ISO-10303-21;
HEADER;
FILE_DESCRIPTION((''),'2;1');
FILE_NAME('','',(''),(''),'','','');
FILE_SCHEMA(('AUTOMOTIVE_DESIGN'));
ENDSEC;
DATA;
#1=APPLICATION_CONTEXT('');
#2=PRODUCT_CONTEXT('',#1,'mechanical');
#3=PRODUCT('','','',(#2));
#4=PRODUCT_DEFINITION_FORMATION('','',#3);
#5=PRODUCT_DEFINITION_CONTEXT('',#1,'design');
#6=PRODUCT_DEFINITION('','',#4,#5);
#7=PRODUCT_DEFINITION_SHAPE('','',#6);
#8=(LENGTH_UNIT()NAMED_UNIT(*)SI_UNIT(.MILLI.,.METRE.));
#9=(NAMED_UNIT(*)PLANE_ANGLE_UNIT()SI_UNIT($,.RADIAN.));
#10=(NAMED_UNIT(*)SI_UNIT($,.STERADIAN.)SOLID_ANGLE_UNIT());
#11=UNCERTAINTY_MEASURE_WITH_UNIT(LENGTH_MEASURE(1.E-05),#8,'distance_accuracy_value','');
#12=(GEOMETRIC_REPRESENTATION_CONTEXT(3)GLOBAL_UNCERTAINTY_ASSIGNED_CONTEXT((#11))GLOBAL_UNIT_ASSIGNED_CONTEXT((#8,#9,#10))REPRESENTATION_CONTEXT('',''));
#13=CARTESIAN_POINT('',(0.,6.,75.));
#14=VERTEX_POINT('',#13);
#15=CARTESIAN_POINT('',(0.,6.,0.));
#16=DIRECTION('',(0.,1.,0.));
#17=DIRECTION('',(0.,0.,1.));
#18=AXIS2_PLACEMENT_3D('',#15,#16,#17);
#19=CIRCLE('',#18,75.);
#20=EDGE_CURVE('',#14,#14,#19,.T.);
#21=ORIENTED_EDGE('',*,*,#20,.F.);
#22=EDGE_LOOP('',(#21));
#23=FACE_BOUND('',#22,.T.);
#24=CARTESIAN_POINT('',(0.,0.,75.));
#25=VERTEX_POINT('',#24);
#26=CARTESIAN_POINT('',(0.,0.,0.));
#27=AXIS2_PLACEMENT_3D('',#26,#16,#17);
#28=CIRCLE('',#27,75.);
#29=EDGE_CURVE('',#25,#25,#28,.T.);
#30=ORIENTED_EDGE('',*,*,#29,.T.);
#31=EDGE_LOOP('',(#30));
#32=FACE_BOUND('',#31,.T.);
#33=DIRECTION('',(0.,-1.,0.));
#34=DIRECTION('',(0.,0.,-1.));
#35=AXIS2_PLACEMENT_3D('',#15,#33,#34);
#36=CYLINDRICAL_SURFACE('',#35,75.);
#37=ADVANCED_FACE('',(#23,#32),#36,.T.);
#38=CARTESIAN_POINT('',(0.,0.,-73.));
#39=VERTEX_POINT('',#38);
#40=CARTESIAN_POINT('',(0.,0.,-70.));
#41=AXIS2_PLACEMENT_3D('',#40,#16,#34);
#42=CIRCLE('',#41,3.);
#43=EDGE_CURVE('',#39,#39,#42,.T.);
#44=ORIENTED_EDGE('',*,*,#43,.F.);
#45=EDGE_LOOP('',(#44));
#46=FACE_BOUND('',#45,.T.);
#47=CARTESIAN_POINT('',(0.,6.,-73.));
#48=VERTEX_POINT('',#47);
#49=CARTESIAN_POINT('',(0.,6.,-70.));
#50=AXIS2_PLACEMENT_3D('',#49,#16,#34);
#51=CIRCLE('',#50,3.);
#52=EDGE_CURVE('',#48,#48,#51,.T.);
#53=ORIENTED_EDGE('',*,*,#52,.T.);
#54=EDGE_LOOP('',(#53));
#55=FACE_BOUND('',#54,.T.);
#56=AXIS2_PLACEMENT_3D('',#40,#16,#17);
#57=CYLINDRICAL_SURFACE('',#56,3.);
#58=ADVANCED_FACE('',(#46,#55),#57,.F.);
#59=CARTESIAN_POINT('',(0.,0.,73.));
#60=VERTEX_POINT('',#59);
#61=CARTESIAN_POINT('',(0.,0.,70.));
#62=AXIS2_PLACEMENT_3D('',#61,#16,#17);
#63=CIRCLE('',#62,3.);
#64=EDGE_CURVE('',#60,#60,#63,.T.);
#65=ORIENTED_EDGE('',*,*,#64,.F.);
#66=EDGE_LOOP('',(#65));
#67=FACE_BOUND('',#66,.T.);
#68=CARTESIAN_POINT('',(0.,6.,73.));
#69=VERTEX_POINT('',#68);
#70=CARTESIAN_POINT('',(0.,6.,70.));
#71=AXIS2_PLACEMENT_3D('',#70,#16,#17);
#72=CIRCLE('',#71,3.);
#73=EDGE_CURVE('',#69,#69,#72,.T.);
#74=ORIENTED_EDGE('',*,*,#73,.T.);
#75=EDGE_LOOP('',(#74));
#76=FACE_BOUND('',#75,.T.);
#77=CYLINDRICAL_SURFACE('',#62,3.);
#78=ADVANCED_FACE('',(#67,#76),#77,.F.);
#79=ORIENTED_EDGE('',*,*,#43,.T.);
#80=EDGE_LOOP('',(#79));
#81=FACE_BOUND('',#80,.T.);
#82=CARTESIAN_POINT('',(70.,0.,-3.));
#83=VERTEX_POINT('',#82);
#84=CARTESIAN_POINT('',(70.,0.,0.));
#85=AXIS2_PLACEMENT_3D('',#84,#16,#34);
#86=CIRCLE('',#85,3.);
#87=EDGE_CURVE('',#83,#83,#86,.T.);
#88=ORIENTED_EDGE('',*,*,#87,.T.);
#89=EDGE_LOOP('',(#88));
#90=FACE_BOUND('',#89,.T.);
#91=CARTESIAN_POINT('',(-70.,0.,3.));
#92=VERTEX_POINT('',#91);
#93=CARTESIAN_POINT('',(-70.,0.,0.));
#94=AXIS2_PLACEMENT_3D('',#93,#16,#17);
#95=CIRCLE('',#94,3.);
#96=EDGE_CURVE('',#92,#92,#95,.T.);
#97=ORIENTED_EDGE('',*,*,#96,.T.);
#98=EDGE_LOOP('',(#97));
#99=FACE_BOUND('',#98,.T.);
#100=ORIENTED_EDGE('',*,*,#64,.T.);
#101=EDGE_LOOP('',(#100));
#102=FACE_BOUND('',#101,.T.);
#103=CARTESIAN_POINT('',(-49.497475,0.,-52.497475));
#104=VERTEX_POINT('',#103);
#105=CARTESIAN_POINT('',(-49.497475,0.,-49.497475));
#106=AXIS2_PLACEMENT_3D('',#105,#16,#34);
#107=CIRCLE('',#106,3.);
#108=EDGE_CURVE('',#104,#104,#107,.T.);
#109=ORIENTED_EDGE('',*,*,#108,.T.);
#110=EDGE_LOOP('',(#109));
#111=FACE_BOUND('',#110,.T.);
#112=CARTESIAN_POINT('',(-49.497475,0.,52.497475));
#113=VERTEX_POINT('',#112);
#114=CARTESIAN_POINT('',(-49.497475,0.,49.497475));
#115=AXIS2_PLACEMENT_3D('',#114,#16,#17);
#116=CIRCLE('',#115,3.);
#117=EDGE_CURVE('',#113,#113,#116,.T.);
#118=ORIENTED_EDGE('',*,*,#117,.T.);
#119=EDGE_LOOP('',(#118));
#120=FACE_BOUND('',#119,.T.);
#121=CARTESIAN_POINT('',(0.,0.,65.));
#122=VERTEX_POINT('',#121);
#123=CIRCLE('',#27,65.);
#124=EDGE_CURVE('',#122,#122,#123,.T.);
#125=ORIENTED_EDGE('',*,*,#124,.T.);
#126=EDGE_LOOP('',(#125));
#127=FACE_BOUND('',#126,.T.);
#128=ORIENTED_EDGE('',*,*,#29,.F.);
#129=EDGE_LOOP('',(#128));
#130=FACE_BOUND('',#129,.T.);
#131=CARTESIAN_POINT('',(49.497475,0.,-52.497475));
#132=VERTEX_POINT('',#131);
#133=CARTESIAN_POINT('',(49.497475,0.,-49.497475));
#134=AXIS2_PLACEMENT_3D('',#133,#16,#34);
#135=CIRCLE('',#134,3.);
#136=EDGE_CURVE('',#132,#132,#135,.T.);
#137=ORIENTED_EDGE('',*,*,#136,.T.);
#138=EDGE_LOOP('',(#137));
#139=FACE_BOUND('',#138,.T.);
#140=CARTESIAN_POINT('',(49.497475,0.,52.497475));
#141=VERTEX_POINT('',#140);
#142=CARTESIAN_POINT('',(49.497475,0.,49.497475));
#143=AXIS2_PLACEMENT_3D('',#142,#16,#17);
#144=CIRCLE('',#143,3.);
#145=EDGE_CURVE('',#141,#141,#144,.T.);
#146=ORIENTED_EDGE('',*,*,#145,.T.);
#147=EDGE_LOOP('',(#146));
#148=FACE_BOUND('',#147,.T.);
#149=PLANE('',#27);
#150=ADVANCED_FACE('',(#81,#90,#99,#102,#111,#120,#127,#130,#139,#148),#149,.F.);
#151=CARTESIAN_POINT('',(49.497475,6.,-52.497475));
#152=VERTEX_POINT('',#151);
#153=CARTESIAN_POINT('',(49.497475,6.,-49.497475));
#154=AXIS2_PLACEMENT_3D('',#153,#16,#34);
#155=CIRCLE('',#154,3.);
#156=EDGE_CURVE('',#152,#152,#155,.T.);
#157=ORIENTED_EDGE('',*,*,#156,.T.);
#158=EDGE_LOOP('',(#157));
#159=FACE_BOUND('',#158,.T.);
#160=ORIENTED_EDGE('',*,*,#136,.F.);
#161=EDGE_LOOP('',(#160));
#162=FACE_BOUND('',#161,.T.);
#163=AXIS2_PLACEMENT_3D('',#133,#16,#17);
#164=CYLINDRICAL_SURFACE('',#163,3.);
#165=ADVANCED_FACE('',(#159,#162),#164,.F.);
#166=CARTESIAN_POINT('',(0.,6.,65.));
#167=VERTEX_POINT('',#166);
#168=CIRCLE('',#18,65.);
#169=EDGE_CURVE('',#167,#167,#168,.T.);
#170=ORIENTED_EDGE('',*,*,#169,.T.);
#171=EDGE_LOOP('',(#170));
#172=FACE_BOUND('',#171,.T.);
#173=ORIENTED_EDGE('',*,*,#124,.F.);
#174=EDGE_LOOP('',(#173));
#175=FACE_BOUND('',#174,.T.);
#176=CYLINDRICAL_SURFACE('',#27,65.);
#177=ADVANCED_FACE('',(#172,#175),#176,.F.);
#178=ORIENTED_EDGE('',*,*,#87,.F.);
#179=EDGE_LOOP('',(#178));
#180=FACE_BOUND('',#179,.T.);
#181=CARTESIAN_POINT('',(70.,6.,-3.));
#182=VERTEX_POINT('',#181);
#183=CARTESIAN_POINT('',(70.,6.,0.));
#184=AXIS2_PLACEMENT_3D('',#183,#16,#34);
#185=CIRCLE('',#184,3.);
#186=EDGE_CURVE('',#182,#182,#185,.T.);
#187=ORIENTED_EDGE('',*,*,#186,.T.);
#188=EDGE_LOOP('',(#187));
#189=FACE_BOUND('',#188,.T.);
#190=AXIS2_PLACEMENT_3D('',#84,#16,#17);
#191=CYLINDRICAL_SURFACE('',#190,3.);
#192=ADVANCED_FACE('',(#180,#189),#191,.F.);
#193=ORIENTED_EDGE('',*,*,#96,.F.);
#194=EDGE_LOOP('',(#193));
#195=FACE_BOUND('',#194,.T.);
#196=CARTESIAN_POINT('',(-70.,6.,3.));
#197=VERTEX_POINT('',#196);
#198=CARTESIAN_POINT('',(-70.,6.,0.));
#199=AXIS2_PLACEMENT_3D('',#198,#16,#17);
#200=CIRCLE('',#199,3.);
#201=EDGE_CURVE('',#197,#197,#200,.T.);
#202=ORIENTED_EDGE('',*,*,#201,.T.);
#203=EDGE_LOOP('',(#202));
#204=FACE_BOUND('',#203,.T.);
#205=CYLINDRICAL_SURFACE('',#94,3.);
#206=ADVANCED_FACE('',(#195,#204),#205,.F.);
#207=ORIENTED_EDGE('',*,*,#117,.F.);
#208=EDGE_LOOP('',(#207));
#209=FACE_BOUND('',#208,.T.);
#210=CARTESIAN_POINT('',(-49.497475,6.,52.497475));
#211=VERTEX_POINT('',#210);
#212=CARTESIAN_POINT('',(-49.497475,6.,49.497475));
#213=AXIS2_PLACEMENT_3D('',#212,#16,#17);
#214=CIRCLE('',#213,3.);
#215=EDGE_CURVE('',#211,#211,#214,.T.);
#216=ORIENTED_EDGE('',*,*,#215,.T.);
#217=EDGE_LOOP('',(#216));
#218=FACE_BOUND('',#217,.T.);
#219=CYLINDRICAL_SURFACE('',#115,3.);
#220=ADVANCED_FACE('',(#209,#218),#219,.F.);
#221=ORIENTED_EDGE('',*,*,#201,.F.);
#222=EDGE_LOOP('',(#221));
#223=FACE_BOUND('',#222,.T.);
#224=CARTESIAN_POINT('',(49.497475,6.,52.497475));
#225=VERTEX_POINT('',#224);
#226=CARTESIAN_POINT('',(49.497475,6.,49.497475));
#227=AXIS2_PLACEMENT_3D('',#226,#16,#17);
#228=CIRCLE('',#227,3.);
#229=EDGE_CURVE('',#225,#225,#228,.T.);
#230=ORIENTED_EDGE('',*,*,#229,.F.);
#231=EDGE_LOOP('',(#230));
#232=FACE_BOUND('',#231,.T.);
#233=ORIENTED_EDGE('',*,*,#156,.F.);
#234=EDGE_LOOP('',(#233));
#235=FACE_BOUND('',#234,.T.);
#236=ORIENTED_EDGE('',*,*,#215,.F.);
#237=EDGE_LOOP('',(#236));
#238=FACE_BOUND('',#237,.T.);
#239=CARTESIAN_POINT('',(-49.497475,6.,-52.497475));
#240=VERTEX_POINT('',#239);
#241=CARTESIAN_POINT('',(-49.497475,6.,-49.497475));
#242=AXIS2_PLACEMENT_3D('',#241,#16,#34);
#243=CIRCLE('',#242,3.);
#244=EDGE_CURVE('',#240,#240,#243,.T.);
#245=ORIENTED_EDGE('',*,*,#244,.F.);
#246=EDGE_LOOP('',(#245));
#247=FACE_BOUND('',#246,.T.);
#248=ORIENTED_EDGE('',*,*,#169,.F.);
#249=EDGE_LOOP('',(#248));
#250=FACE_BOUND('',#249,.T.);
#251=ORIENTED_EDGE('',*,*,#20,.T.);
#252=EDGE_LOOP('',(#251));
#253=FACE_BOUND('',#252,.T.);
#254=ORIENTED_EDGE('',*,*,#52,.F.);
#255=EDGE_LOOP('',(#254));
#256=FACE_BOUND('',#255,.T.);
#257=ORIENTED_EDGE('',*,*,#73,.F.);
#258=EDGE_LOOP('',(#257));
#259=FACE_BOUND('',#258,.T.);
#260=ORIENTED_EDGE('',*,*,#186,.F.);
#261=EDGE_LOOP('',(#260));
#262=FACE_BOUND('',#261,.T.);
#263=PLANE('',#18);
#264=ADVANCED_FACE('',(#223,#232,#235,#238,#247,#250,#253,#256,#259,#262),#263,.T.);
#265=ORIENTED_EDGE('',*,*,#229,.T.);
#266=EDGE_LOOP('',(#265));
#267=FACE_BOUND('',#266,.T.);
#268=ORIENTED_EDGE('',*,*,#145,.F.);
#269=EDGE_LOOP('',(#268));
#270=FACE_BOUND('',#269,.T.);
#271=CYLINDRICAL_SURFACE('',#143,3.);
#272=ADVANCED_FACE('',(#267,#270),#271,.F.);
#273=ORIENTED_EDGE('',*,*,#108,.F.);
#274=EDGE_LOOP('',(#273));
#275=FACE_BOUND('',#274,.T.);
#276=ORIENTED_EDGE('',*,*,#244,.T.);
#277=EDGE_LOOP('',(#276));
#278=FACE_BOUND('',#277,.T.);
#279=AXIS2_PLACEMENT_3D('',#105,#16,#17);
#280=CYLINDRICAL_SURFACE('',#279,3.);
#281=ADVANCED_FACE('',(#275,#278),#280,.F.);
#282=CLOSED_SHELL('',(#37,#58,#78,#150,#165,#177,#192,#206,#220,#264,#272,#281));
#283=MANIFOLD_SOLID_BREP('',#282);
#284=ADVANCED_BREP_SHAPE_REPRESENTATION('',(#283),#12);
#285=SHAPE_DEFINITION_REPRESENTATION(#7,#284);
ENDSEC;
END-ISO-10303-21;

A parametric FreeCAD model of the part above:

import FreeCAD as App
import Part
import Sketcher

V = App.Vector
Q = App.Units.Quantity

doc = App.newDocument("Part")
body = doc.addObject("PartDesign::Body", "Body")

# Sketch on XZ plane
sketch1 = body.newObject("Sketcher::SketchObject", "Sketch")
sketch1.AttachmentSupport = (doc.getObject("XZ_Plane"), [""])
sketch1.MapMode = "FlatFace"
sketch1.addGeometry(Part.Circle(V(0, 0, 0), V(0, 0, 1), 75), False)
sketch1.addConstraint([
    Sketcher.Constraint("Coincident", 0, 3, -1, 1),
    Sketcher.Constraint("Diameter", 0, Q("150 mm")),
])
pad1 = body.newObject("PartDesign::Pad", "Pad")
pad1.Profile = sketch1
pad1.Length = 6
pad1.Reversed = True

# Sketch on XZ plane
sketch2 = body.newObject("Sketcher::SketchObject", "Sketch001")
sketch2.AttachmentSupport = (doc.getObject("XZ_Plane"), [""])
sketch2.MapMode = "FlatFace"
sketch2.AttachmentOffset = App.Placement(V(0, 0, -6), App.Rotation())
sketch2.addGeometry([
    Part.Circle(V(-70, 0, 0), V(0, 0, 1), 3),  # 0
    Part.Circle(V(70, 0, 0), V(0, 0, 1), 3),  # 1
    Part.Circle(V(0, 70, 0), V(0, 0, 1), 3),  # 2
    Part.Circle(V(0, -70, 0), V(0, 0, 1), 3),  # 3
    Part.Circle(V(-49.5, 49.5, 0), V(0, 0, 1), 3),  # 4
    Part.Circle(V(-49.5, -49.5, 0), V(0, 0, 1), 3),  # 5
    Part.Circle(V(49.5, 49.5, 0), V(0, 0, 1), 3),  # 6
    Part.Circle(V(49.5, -49.5, 0), V(0, 0, 1), 3),  # 7
], False)
sketch2.addConstraint([
    Sketcher.Constraint("Equal", 0, 1),
    Sketcher.Constraint("Equal", 1, 2),
    Sketcher.Constraint("Equal", 2, 3),
    Sketcher.Constraint("Equal", 3, 4),
    Sketcher.Constraint("Equal", 4, 5),
    Sketcher.Constraint("Equal", 5, 6),
    Sketcher.Constraint("Equal", 6, 7),
    Sketcher.Constraint("Symmetric", 0, 3, 1, 3, -1, 1),
    Sketcher.Constraint("Symmetric", 2, 3, 3, 3, -1, 1),
    Sketcher.Constraint("Symmetric", 5, 3, 6, 3, -1, 1),
    Sketcher.Constraint("Symmetric", 4, 3, 7, 3, -1, 1),
    Sketcher.Constraint("Symmetric", 4, 3, 6, 3, -2),
    Sketcher.Constraint("PointOnObject", 0, 3, -1),
    Sketcher.Constraint("PointOnObject", 2, 3, -2),
    Sketcher.Constraint("Diameter", 0, Q("6 mm")),
    Sketcher.Constraint("DistanceX", 0, 3, -1, 1, Q("70 mm")),
    Sketcher.Constraint("DistanceY", -1, 1, 2, 3, Q("70 mm")),
    Sketcher.Constraint("DistanceY", 5, 3, 4, 3, Q("98.994949 mm")),
    Sketcher.Constraint("DistanceX", 4, 3, 6, 3, Q("98.994949 mm")),
])
pocket1 = body.newObject("PartDesign::Pocket", "Pocket")
pocket1.Profile = sketch2
pocket1.Length = 6
pocket1.Reversed = True

# Sketch on XZ plane
sketch3 = body.newObject("Sketcher::SketchObject", "Sketch002")
sketch3.AttachmentSupport = (doc.getObject("XZ_Plane"), [""])
sketch3.MapMode = "FlatFace"
sketch3.AttachmentOffset = App.Placement(V(0, 0, -6), App.Rotation())
sketch3.addGeometry(Part.Circle(V(0, 0, 0), V(0, 0, 1), 65), False)
sketch3.addConstraint([
    Sketcher.Constraint("Coincident", 0, 3, -1, 1),
    Sketcher.Constraint("Diameter", 0, Q("130 mm")),
])
pocket2 = body.newObject("PartDesign::Pocket", "Pocket001")
pocket2.Profile = sketch3
pocket2.Length = 6
pocket2.Reversed = True

doc.recompute()
